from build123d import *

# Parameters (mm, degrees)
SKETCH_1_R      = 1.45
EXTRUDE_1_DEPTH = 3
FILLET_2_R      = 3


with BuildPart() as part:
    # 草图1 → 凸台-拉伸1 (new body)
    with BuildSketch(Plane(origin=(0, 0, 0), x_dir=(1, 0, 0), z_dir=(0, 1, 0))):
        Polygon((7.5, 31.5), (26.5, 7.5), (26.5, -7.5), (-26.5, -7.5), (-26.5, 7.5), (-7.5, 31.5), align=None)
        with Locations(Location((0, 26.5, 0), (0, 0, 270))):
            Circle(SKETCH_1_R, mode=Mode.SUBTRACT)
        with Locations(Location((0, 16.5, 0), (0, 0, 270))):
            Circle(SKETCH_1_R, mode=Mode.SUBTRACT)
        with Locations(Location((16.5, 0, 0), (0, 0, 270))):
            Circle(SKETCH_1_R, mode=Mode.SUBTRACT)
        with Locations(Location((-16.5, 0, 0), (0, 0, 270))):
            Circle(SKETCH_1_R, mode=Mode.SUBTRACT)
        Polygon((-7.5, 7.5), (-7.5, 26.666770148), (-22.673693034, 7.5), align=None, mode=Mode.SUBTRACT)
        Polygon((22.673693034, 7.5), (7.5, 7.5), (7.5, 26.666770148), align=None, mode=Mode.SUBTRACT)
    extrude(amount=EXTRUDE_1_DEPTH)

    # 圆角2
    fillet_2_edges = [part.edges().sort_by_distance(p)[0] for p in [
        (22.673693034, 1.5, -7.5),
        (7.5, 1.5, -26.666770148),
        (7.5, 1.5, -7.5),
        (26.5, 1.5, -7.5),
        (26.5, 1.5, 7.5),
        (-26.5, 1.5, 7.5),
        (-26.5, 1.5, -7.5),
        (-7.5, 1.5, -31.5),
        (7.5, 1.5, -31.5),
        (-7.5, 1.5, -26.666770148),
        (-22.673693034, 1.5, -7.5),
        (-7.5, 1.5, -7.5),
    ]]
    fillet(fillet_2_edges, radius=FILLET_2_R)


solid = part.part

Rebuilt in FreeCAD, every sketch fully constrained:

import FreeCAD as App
import Part
import Sketcher
Q = App.Units.Quantity


def edges_at(feature, points):
    """Names of the edges that pass closest to the given points."""
    edges = feature.Shape.Edges
    near = lambda p: min(range(len(edges)), key=lambda i: edges[i].distToShape(Part.Vertex(*p))[0])
    return sorted({f"Edge{near(p) + 1}" for p in points})

doc = App.newDocument("Part")
body = doc.addObject("PartDesign::Body", "Body")

# Sketch on XZ plane
sketch1 = doc.addObject("Sketcher::SketchObject", "Sketch")
body.addObject(sketch1)
sketch1.AttachmentSupport = (doc.XZ_Plane, [""])
sketch1.MapMode = "FlatFace"
sketch1.addGeometry([
    Part.LineSegment(App.Vector(26.5, -7.5, 0), App.Vector(7.5, -31.5, 0)),  # 0
    Part.LineSegment(App.Vector(7.5, -31.5, 0), App.Vector(-7.5, -31.5, 0)),  # 1
    Part.LineSegment(App.Vector(-7.5, -31.5, 0), App.Vector(-26.5, -7.5, 0)),  # 2
    Part.LineSegment(App.Vector(-26.5, -7.5, 0), App.Vector(-26.5, 7.5, 0)),  # 3
    Part.LineSegment(App.Vector(-26.5, 7.5, 0), App.Vector(26.5, 7.5, 0)),  # 4
    Part.LineSegment(App.Vector(26.5, 7.5, 0), App.Vector(26.5, -7.5, 0)),  # 5
    Part.Circle(App.Vector(16.5, 0, 0), App.Vector(0, 0, 1), 1.45),  # 6
    Part.Circle(App.Vector(-16.5, 0, 0), App.Vector(0, 0, 1), 1.45),  # 7
    Part.LineSegment(App.Vector(22.673693, -7.5, 0), App.Vector(7.5, -7.5, 0)),  # 8
    Part.LineSegment(App.Vector(7.5, -7.5, 0), App.Vector(7.5, -26.66677, 0)),  # 9
    Part.LineSegment(App.Vector(7.5, -26.66677, 0), App.Vector(22.673693, -7.5, 0)),  # 10
    Part.Circle(App.Vector(0, -16.5, 0), App.Vector(0, 0, 1), 1.45),  # 11
    Part.Circle(App.Vector(0, -26.5, 0), App.Vector(0, 0, 1), 1.45),  # 12
    Part.LineSegment(App.Vector(-7.5, -7.5, 0), App.Vector(-22.673693, -7.5, 0)),  # 13
    Part.LineSegment(App.Vector(-22.673693, -7.5, 0), App.Vector(-7.5, -26.66677, 0)),  # 14
    Part.LineSegment(App.Vector(-7.5, -26.66677, 0), App.Vector(-7.5, -7.5, 0)),  # 15
], False)
sketch1.addConstraint([
    Sketcher.Constraint("Coincident", 0, 2, 1, 1),
    Sketcher.Constraint("Coincident", 1, 2, 2, 1),
    Sketcher.Constraint("Coincident", 2, 2, 3, 1),
    Sketcher.Constraint("Coincident", 3, 2, 4, 1),
    Sketcher.Constraint("Coincident", 4, 2, 5, 1),
    Sketcher.Constraint("Coincident", 5, 2, 0, 1),
    Sketcher.Constraint("Coincident", 8, 2, 9, 1),
    Sketcher.Constraint("Coincident", 9, 2, 10, 1),
    Sketcher.Constraint("Coincident", 10, 2, 8, 1),
    Sketcher.Constraint("Coincident", 13, 2, 14, 1),
    Sketcher.Constraint("Coincident", 14, 2, 15, 1),
    Sketcher.Constraint("Coincident", 15, 2, 13, 1),
    Sketcher.Constraint("Horizontal", 1),
    Sketcher.Constraint("Vertical", 3),
    Sketcher.Constraint("Horizontal", 4),
    Sketcher.Constraint("Vertical", 5),
    Sketcher.Constraint("Horizontal", 8),
    Sketcher.Constraint("Vertical", 9),
    Sketcher.Constraint("Horizontal", 13),
    Sketcher.Constraint("Vertical", 15),
    Sketcher.Constraint("Equal", 6, 7),
    Sketcher.Constraint("Equal", 7, 11),
    Sketcher.Constraint("Equal", 11, 12),
    Sketcher.Constraint("Symmetric", 6, 3, 7, 3, -1, 1),
    Sketcher.Constraint("Symmetric", 2, 2, 4, 2, -1, 1),
    Sketcher.Constraint("Symmetric", 10, 2, 13, 2, -2),
    Sketcher.Constraint("Symmetric", 9, 2, 14, 2, -2),
    Sketcher.Constraint("PointOnObject", 6, 3, -1),
    Sketcher.Constraint("PointOnObject", 11, 3, -2),
    Sketcher.Constraint("PointOnObject", 12, 3, -2),
    Sketcher.Constraint("Parallel", 0, 10),
    Sketcher.Constraint("Parallel", 2, 14),
    Sketcher.Constraint("Horizontal", 2, 2, 5, 2),
    Sketcher.Constraint("Horizontal", 5, 2, 8, 2),
    Sketcher.Constraint("Vertical", 0, 2, 8, 2),
    Sketcher.Constraint("Equal", 1, 3),
    Sketcher.Constraint("Diameter", 6, Q("2.9 mm")),
    Sketcher.Constraint("DistanceX", 1, 2, 1, 1, Q("15 mm")),
    Sketcher.Constraint("DistanceX", 4, 1, 4, 2, Q("53 mm")),
    Sketcher.Constraint("DistanceX", 7, 3, 6, 3, Q("33 mm")),
    Sketcher.Constraint("DistanceY", 12, 3, 11, 3, Q("10 mm")),
    Sketcher.Constraint("DistanceY", 0, 2, 12, 3, Q("5 mm")),
    Sketcher.Constraint("DistanceY", 11, 3, 2, 2, Q("9 mm")),
    Sketcher.Constraint("DistanceY", 9, 2, 9, 1, Q("19.16677 mm")),
])
pad1 = doc.addObject("PartDesign::Pad", "Pad")
body.addObject(pad1)
pad1.Profile = sketch1
pad1.Length = 3
pad1.Reversed = True
doc.recompute()

fillet = doc.addObject("PartDesign::Fillet", "Fillet")
body.addObject(fillet)
fillet.Base = (pad1, edges_at(pad1, [
    (22.674, 1.5, -7.5),
    (7.5, 1.5, -26.667),
    (7.5, 1.5, -7.5),
    (26.5, 1.5, -7.5),
    (26.5, 1.5, 7.5),
    (-26.5, 1.5, 7.5),
    (-26.5, 1.5, -7.5),
    (-7.5, 1.5, -31.5),
    (7.5, 1.5, -31.5),
    (-7.5, 1.5, -26.667),
    (-22.674, 1.5, -7.5),
    (-7.5, 1.5, -7.5),
]))
fillet.Radius = 3

doc.recompute()
